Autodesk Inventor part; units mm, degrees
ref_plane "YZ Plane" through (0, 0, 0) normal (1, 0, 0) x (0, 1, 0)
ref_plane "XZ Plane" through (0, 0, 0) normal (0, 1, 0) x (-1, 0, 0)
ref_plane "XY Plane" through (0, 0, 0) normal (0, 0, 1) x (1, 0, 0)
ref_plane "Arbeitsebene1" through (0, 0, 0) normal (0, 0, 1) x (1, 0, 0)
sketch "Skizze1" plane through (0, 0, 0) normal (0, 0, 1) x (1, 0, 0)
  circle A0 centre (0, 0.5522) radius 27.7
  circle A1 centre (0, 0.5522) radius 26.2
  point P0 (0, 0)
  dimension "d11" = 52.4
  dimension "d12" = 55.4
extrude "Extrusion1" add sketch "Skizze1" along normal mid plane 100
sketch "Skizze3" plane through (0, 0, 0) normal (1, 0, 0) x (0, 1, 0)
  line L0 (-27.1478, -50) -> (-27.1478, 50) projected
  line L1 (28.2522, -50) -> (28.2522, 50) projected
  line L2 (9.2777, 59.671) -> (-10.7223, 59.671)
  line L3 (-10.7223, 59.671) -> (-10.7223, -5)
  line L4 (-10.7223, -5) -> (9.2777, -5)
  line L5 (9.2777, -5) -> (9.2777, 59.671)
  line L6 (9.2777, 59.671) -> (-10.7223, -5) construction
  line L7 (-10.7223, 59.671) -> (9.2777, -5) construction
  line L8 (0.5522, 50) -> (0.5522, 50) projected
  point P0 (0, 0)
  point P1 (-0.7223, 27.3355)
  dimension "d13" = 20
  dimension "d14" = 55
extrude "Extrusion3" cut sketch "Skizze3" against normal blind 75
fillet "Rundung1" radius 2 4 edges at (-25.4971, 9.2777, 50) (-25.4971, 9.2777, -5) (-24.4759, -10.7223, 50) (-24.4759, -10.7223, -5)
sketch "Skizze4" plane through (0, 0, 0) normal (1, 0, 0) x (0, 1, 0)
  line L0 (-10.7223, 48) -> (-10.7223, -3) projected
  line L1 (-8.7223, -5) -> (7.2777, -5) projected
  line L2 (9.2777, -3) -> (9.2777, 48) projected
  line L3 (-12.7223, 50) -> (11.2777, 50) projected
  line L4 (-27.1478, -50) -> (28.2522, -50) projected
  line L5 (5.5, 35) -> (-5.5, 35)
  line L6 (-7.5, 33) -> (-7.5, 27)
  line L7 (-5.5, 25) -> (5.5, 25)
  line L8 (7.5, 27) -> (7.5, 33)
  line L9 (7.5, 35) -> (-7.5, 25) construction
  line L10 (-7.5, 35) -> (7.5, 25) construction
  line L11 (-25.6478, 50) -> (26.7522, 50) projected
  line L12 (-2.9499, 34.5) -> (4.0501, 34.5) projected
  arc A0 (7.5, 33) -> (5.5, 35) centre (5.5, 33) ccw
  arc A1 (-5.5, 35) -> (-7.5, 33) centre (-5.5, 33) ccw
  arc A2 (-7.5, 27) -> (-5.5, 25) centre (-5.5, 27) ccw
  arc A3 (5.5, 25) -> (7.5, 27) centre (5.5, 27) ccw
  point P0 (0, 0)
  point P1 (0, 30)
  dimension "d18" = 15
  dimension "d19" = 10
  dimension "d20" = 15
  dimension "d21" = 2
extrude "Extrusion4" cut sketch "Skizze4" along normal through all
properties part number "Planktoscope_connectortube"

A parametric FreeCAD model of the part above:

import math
import FreeCAD as App
import Part
import Sketcher
from FreeCAD import Vector
Q = App.Units.Quantity


def edges_at(feature, points):
    """Names of the edges that pass closest to the given points."""
    edges = feature.Shape.Edges
    near = lambda p: min(range(len(edges)), key=lambda i: edges[i].distToShape(Part.Vertex(*p))[0])
    return sorted({f"Edge{near(p) + 1}" for p in points})


def add_polygon(sketch, points):
    """Adds a closed chain of lines whose ends are joined by coincident constraints."""
    first, n = sketch.GeometryCount, len(points)
    for a, b in zip(points, points[1:] + points[:1]):
        sketch.addGeometry(Part.LineSegment(App.Vector(*a, 0), App.Vector(*b, 0)), False)
    for i in range(n):
        sketch.addConstraint(Sketcher.Constraint("Coincident", first + i, 2, first + (i + 1) % n, 1))

doc = App.newDocument("Part")
body = doc.addObject("PartDesign::Body", "Body")

# Sketch on XY plane
sketch1 = body.newObject("Sketcher::SketchObject", "Sketch")
sketch1.AttachmentSupport = (doc.getObject("XY_Plane"), [""])
sketch1.MapMode = "FlatFace"
sketch1.addGeometry([
    Part.Circle(Vector(0, 1, 0), Vector(0, 0, 1), 28),
    Part.Circle(Vector(0, 1, 0), Vector(0, 0, 1), 26),
], False)
sketch1.addConstraint([
    Sketcher.Constraint("Coincident", 1, 3, 0, 3),
    Sketcher.Constraint("PointOnObject", 0, 3, -2),
    Sketcher.Constraint("Diameter", 0, Q("55.4 mm")),
    Sketcher.Constraint("Diameter", 1, Q("52.4 mm")),
    Sketcher.Constraint("DistanceY", -1, 1, 0, 3, Q("0.5522 mm")),
])
pad1 = body.newObject("PartDesign::Pad", "Pad")
pad1.Profile = sketch1
pad1.Length = 100
pad1.Midplane = True

# Sketch on YZ plane
sketch2 = body.newObject("Sketcher::SketchObject", "Sketch001")
sketch2.AttachmentSupport = (doc.getObject("YZ_Plane"), [""])
sketch2.MapMode = "FlatFace"
add_polygon(sketch2, [(9, -5), (9, 60), (-11, 60), (-11, -5)])  # lines 0-3
sketch2.addConstraint([
    Sketcher.Constraint("Vertical", 0),
    Sketcher.Constraint("Horizontal", 1),
    Sketcher.Constraint("Vertical", 2),
    Sketcher.Constraint("Horizontal", 3),
    Sketcher.Constraint("DistanceX", 1, 2, 1, 1, Q("20 mm")),
    Sketcher.Constraint("DistanceY", 2, 2, -1, 1, Q("5 mm")),
    Sketcher.Constraint("DistanceY", 0, 1, 0, 2, Q("64.671 mm")),
    Sketcher.Constraint("DistanceX", -1, 1, 0, 2, Q("9.2777 mm")),
])
pocket1 = body.newObject("PartDesign::Pocket", "Pocket")
pocket1.Profile = sketch2
pocket1.Length = 75
doc.recompute()

fillet = body.newObject("PartDesign::Fillet", "Fillet")
fillet.Base = (pocket1, edges_at(pocket1, [
    (-25.497, 9.278, 50),
    (-25.497, 9.278, -5),
    (-24.476, -10.722, 50),
    (-24.476, -10.722, -5),
]))
fillet.Radius = 2

# Sketch on YZ plane
sketch3 = body.newObject("Sketcher::SketchObject", "Sketch002")
sketch3.AttachmentSupport = (doc.getObject("YZ_Plane"), [""])
sketch3.MapMode = "FlatFace"
sketch3.addGeometry([
    Part.ArcOfCircle(Part.Circle(Vector(5.5, 33, 0), Vector(0, 0, 1), 2), math.radians(0), math.radians(90)),  # 0
    Part.LineSegment(Vector(5.5, 35, 0), Vector(-5.5, 35, 0)),  # 1
    Part.ArcOfCircle(Part.Circle(Vector(-5.5, 33, 0), Vector(0, 0, 1), 2), math.radians(90), math.radians(180)),  # 2
    Part.LineSegment(Vector(-7.5, 33, 0), Vector(-7.5, 27, 0)),  # 3
    Part.ArcOfCircle(Part.Circle(Vector(-5.5, 27, 0), Vector(0, 0, 1), 2), math.radians(180), math.radians(270)),  # 4
    Part.LineSegment(Vector(-5.5, 25, 0), Vector(5.5, 25, 0)),  # 5
    Part.ArcOfCircle(Part.Circle(Vector(5.5, 27, 0), Vector(0, 0, 1), 2), math.radians(-90), math.radians(0)),  # 6
    Part.LineSegment(Vector(7.5, 27, 0), Vector(7.5, 33, 0)),  # 7
], False)
sketch3.addConstraint([
    Sketcher.Constraint("Tangent", 0, 2, 1, 1),
    Sketcher.Constraint("Tangent", 1, 2, 2, 1),
    Sketcher.Constraint("Tangent", 2, 2, 3, 1),
    Sketcher.Constraint("Tangent", 3, 2, 4, 1),
    Sketcher.Constraint("Tangent", 4, 2, 5, 1),
    Sketcher.Constraint("Tangent", 5, 2, 6, 1),
    Sketcher.Constraint("Tangent", 6, 2, 7, 1),
    Sketcher.Constraint("Tangent", 7, 2, 0, 1),
    Sketcher.Constraint("Horizontal", 1),
    Sketcher.Constraint("Vertical", 3),
    Sketcher.Constraint("Horizontal", 5),
    Sketcher.Constraint("Vertical", 7),
    Sketcher.Constraint("Equal", 0, 2),
    Sketcher.Constraint("Equal", 2, 4),
    Sketcher.Constraint("Equal", 4, 6),
    Sketcher.Constraint("Radius", 0, Q("2 mm")),
    Sketcher.Constraint("DistanceY", 4, 2, 1, 2, Q("10 mm")),
    Sketcher.Constraint("DistanceX", 1, 2, 1, 1, Q("11 mm")),
    Sketcher.Constraint("DistanceY", -1, 1, 0, 3, Q("33 mm")),
    Sketcher.Constraint("DistanceX", -1, 1, 0, 3, Q("5.5 mm")),
])
pocket2 = body.newObject("PartDesign::Pocket", "Pocket001")
pocket2.Profile = sketch3
pocket2.Type = "ThroughAll"
pocket2.Reversed = True

doc.recompute()
